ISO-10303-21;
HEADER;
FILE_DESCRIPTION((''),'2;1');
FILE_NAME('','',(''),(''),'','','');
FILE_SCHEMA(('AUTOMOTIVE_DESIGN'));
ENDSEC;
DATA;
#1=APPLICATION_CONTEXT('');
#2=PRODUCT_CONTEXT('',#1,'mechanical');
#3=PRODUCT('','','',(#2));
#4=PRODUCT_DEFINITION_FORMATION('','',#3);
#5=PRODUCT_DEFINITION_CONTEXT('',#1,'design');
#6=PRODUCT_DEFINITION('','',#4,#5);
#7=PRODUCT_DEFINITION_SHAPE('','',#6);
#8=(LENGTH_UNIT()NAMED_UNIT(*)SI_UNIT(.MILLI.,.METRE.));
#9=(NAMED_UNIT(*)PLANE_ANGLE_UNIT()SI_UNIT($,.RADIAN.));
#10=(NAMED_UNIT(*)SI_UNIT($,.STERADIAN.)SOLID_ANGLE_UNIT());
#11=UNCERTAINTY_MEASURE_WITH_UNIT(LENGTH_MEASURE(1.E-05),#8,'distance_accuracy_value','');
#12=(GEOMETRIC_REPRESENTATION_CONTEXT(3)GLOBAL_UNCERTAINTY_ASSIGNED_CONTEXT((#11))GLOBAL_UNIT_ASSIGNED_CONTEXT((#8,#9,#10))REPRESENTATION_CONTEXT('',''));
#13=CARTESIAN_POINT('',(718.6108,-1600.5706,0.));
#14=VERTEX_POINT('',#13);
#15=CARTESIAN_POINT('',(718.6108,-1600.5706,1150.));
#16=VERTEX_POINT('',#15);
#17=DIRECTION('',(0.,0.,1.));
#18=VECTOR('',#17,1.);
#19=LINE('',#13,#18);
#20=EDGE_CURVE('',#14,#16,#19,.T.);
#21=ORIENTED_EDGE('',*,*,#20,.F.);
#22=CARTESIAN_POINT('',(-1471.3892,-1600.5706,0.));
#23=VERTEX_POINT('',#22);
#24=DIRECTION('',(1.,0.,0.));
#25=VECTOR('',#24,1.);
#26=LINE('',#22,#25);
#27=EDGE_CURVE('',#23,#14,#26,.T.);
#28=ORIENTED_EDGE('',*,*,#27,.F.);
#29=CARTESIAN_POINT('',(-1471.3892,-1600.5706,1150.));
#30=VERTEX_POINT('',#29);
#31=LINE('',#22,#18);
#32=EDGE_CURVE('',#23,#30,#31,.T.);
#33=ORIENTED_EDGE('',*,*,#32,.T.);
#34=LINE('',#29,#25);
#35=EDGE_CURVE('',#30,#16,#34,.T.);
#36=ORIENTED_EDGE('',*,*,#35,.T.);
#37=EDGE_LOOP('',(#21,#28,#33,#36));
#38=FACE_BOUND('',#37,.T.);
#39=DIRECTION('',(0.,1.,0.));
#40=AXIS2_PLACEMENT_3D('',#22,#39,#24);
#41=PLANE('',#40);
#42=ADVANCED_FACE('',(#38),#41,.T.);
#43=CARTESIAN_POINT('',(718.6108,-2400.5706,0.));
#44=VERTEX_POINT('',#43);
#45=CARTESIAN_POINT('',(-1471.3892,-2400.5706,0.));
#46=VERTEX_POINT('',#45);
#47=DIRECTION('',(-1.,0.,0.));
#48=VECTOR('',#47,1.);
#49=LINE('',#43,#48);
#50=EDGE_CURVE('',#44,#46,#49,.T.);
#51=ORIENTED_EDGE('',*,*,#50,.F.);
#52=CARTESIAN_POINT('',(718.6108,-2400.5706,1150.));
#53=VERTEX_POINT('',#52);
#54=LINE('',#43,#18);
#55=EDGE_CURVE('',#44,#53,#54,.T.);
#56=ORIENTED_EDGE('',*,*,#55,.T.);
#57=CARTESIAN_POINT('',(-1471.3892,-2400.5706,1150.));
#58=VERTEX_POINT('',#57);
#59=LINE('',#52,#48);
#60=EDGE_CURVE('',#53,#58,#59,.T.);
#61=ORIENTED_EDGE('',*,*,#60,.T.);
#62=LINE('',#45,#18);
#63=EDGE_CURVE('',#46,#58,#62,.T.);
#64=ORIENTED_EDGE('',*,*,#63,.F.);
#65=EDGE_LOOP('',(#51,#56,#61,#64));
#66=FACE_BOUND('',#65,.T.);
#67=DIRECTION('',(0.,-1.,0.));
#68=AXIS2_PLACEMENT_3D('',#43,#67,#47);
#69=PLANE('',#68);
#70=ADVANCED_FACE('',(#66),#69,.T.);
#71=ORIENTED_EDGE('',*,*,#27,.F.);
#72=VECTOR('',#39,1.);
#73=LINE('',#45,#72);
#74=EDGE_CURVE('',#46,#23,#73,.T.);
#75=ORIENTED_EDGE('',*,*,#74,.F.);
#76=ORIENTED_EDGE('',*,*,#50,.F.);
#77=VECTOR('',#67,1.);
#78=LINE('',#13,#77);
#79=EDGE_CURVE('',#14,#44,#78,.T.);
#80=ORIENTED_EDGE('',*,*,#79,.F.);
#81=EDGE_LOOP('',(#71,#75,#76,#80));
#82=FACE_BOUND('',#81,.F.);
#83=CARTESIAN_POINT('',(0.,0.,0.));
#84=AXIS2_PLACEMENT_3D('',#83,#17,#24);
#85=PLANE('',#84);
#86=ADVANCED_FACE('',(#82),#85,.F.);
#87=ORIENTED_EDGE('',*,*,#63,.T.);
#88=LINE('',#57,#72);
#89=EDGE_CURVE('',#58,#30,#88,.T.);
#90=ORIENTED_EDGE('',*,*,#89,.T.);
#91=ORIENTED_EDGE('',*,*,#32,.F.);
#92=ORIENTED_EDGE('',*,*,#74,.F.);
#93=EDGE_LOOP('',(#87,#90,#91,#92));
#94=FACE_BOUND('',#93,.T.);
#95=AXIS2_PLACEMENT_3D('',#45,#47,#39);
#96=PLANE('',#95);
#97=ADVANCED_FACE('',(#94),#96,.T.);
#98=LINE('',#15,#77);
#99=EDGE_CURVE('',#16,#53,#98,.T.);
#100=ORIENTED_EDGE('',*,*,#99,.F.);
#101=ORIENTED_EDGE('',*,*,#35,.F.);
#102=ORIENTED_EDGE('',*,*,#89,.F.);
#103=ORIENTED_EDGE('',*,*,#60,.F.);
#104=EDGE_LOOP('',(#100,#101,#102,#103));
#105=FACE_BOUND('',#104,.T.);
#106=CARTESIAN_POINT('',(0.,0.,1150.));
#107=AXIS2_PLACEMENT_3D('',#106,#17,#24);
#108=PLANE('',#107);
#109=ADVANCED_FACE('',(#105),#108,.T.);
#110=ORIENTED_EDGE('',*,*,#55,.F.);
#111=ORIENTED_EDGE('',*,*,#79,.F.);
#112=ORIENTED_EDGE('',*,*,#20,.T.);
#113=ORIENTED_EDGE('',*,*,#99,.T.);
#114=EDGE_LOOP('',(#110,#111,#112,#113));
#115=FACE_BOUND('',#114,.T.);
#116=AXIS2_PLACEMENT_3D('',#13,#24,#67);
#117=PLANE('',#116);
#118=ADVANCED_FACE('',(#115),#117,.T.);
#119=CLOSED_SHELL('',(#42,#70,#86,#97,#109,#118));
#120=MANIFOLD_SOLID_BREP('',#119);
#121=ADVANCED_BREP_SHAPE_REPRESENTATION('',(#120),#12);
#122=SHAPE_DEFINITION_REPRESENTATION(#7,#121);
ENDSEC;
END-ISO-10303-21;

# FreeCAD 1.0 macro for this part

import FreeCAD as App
import Part
import Sketcher

V = App.Vector
Q = App.Units.Quantity


def add_polygon(sketch, points):
    """Adds a closed chain of lines whose ends are joined by coincident constraints."""
    first, n = sketch.GeometryCount, len(points)
    for a, b in zip(points, points[1:] + points[:1]):
        sketch.addGeometry(Part.LineSegment(App.Vector(*a, 0), App.Vector(*b, 0)), False)
    for i in range(n):
        sketch.addConstraint(Sketcher.Constraint("Coincident", first + i, 2, first + (i + 1) % n, 1))

doc = App.newDocument("Part")
body = doc.addObject("PartDesign::Body", "Body")

# Sketch on XY plane
sketch1 = doc.addObject("Sketcher::SketchObject", "Sketch")
body.addObject(sketch1)
sketch1.AttachmentSupport = (doc.XY_Plane, [""])
sketch1.MapMode = "FlatFace"
add_polygon(sketch1, [(718.6108, -1600.5706), (-1471.3892, -1600.5706), (-1471.3892, -2400.5706), (718.6108, -2400.5706)])  # lines 0-3
sketch1.addConstraint(Sketcher.Constraint("Horizontal", 0))
sketch1.addConstraint(Sketcher.Constraint("Vertical", 1))
sketch1.addConstraint(Sketcher.Constraint("Horizontal", 2))
sketch1.addConstraint(Sketcher.Constraint("Vertical", 3))
sketch1.addConstraint(Sketcher.Constraint("DistanceX", 0, 2, 0, 1, Q("2190 mm")))
sketch1.addConstraint(Sketcher.Constraint("DistanceY", 1, 2, 1, 1, Q("800 mm")))
sketch1.addConstraint(Sketcher.Constraint("DistanceX", 0, 2, -1, 1, Q("1471.3892 mm")))
sketch1.addConstraint(Sketcher.Constraint("DistanceY", 0, 2, -1, 1, Q("1600.5706 mm")))
pad1 = doc.addObject("PartDesign::Pad", "Pad")
body.addObject(pad1)
pad1.Profile = sketch1
pad1.Length = 1150

doc.recompute()
